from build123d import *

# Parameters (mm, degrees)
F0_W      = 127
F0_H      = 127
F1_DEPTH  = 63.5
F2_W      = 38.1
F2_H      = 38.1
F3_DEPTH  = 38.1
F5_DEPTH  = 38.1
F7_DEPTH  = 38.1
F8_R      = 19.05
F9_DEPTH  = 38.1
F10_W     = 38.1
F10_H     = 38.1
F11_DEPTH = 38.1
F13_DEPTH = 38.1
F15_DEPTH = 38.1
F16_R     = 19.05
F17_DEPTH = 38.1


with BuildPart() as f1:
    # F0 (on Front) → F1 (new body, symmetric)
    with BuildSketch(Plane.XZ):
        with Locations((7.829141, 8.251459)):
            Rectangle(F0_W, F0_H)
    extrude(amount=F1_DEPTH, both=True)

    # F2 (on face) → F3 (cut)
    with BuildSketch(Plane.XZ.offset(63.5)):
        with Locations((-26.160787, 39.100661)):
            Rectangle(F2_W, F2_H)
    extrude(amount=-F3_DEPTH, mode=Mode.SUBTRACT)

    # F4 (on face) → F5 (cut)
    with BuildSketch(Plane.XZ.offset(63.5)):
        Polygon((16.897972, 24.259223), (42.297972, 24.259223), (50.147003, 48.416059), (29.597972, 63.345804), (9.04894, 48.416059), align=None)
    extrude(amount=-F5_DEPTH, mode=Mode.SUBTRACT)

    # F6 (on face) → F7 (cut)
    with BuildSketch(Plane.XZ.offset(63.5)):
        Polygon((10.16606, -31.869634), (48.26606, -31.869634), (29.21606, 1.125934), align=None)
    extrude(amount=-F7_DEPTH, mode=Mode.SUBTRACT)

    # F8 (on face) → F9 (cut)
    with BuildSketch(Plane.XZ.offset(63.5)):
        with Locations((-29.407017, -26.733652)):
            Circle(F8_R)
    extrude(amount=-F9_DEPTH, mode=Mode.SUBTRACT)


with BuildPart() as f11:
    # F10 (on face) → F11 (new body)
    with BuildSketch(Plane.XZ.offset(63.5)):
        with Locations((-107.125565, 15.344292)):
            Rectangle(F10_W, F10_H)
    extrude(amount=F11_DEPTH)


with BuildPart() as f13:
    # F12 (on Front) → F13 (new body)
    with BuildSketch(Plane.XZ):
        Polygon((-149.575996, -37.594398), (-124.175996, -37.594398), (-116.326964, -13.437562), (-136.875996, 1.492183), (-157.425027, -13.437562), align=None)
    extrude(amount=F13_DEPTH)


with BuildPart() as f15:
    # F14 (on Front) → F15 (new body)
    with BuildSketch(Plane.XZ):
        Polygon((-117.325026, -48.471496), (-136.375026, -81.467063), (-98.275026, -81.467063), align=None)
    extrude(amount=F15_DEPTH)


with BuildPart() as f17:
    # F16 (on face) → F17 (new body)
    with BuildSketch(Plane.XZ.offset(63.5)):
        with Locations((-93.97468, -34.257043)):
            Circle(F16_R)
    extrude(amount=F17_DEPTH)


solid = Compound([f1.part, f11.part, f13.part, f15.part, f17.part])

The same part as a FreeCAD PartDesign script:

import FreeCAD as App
import Part
import Sketcher
from FreeCAD import Vector
Q = App.Units.Quantity


def add_polygon(sketch, points):
    """Adds a closed chain of lines whose ends are joined by coincident constraints."""
    first, n = sketch.GeometryCount, len(points)
    for a, b in zip(points, points[1:] + points[:1]):
        sketch.addGeometry(Part.LineSegment(App.Vector(*a, 0), App.Vector(*b, 0)), False)
    for i in range(n):
        sketch.addConstraint(Sketcher.Constraint("Coincident", first + i, 2, first + (i + 1) % n, 1))

doc = App.newDocument("Part")
body = doc.addObject("PartDesign::Body", "Body")

# Sketch on XZ plane
sketch1 = body.newObject("Sketcher::SketchObject", "Sketch")
sketch1.AttachmentSupport = (doc.getObject("XZ_Plane"), [""])
sketch1.MapMode = "FlatFace"
add_polygon(sketch1, [(-56, 72), (-56, -55), (71, -55), (71, 72)])  # lines 0-3
sketch1.addConstraint(Sketcher.Constraint("Vertical", 0))
sketch1.addConstraint(Sketcher.Constraint("Horizontal", 1))
sketch1.addConstraint(Sketcher.Constraint("Vertical", 2))
sketch1.addConstraint(Sketcher.Constraint("Horizontal", 3))
sketch1.addConstraint(Sketcher.Constraint("Equal", 3, 0))
sketch1.addConstraint(Sketcher.Constraint("DistanceX", 1, 1, 1, 2, Q("5 in")))
sketch1.addConstraint(Sketcher.Constraint("DistanceX", 0, 2, -1, 1, Q("55.670859 mm")))
sketch1.addConstraint(Sketcher.Constraint("DistanceY", 0, 2, -1, 1, Q("55.248541 mm")))
pad1 = body.newObject("PartDesign::Pad", "Pad")
pad1.Profile = sketch1
pad1.Length = Q("5 in")
pad1.Midplane = True

# Sketch on XZ plane
sketch2 = body.newObject("Sketcher::SketchObject", "Sketch001")
sketch2.AttachmentSupport = (doc.getObject("XZ_Plane"), [""])
sketch2.MapMode = "FlatFace"
sketch2.AttachmentOffset = App.Placement(Vector(0, 0, 2.5 * 25.4), App.Rotation())
add_polygon(sketch2, [(-45, 58), (-45, 20), (-7, 20), (-7, 58)])  # lines 0-3
sketch2.addConstraint(Sketcher.Constraint("Vertical", 0))
sketch2.addConstraint(Sketcher.Constraint("Horizontal", 1))
sketch2.addConstraint(Sketcher.Constraint("Vertical", 2))
sketch2.addConstraint(Sketcher.Constraint("Horizontal", 3))
sketch2.addConstraint(Sketcher.Constraint("Equal", 3, 0))
sketch2.addConstraint(Sketcher.Constraint("DistanceX", 1, 1, 1, 2, Q("1.5 in")))
sketch2.addConstraint(Sketcher.Constraint("DistanceY", -1, 1, 0, 2, Q("20.050661 mm")))
sketch2.addConstraint(Sketcher.Constraint("DistanceX", 0, 2, -1, 1, Q("45.210787 mm")))
pocket1 = body.newObject("PartDesign::Pocket", "Pocket")
pocket1.Profile = sketch2
pocket1.Length = Q("1.5 in")

# Sketch on XZ plane
sketch3 = body.newObject("Sketcher::SketchObject", "Sketch002")
sketch3.AttachmentSupport = (doc.getObject("XZ_Plane"), [""])
sketch3.MapMode = "FlatFace"
sketch3.AttachmentOffset = App.Placement(Vector(0, 0, 2.5 * 25.4), App.Rotation())
add_polygon(sketch3, [(17, 24), (42, 24), (50, 48), (30, 63), (9, 48)])  # lines 0-4
sketch3.addConstraint(Sketcher.Constraint("Horizontal", 0))
sketch3.addConstraint(Sketcher.Constraint("Horizontal", 1, 2, 3, 2))
sketch3.addConstraint(Sketcher.Constraint("Equal", 1, 2))
sketch3.addConstraint(Sketcher.Constraint("Equal", 2, 3))
sketch3.addConstraint(Sketcher.Constraint("Equal", 3, 4))
sketch3.addConstraint(Sketcher.Constraint("DistanceX", 0, 1, 0, 2, Q("1 in")))
sketch3.addConstraint(Sketcher.Constraint("Distance", 1, Q("1 in")))
sketch3.addConstraint(Sketcher.Constraint("Angle", 1, Q("72.000002 deg")))
sketch3.addConstraint(Sketcher.Constraint("DistanceY", -1, 1, 1, 2, Q("48.416059 mm")))
sketch3.addConstraint(Sketcher.Constraint("DistanceX", -1, 1, 2, 2, Q("29.597972 mm")))
pocket2 = body.newObject("PartDesign::Pocket", "Pocket001")
pocket2.Profile = sketch3
pocket2.Length = Q("1.5 in")

# Sketch on XZ plane
sketch4 = body.newObject("Sketcher::SketchObject", "Sketch003")
sketch4.AttachmentSupport = (doc.getObject("XZ_Plane"), [""])
sketch4.MapMode = "FlatFace"
sketch4.AttachmentOffset = App.Placement(Vector(0, 0, 2.5 * 25.4), App.Rotation())
add_polygon(sketch4, [(10, -32), (48, -32), (29, 1)])  # lines 0-2
sketch4.addConstraint(Sketcher.Constraint("Horizontal", 0))
sketch4.addConstraint(Sketcher.Constraint("Equal", 1, 2))
sketch4.addConstraint(Sketcher.Constraint("DistanceX", 0, 1, 0, 2, Q("1.5 in")))
sketch4.addConstraint(Sketcher.Constraint("Angle", 1, Q("120 deg")))
sketch4.addConstraint(Sketcher.Constraint("DistanceX", -1, 1, 0, 2, Q("48.26606 mm")))
sketch4.addConstraint(Sketcher.Constraint("DistanceY", 0, 2, -1, 1, Q("31.869634 mm")))
pocket3 = body.newObject("PartDesign::Pocket", "Pocket002")
pocket3.Profile = sketch4
pocket3.Length = Q("1.5 in")

# Sketch on XZ plane
sketch5 = body.newObject("Sketcher::SketchObject", "Sketch004")
sketch5.AttachmentSupport = (doc.getObject("XZ_Plane"), [""])
sketch5.MapMode = "FlatFace"
sketch5.AttachmentOffset = App.Placement(Vector(0, 0, 2.5 * 25.4), App.Rotation())
sketch5.addGeometry(Part.Circle(Vector(-29, -27, 0), Vector(0, 0, 1), 19), False)
sketch5.addConstraint(Sketcher.Constraint("Diameter", 0, Q("1.5 in")))
sketch5.addConstraint(Sketcher.Constraint("DistanceY", 0, 3, -1, 1, Q("26.733652 mm")))
sketch5.addConstraint(Sketcher.Constraint("DistanceX", 0, 3, -1, 1, Q("29.407017 mm")))
pocket4 = body.newObject("PartDesign::Pocket", "Pocket003")
pocket4.Profile = sketch5
pocket4.Length = Q("1.5 in")
body2 = doc.addObject("PartDesign::Body", "Body001")

# Sketch on XZ plane
sketch6 = body2.newObject("Sketcher::SketchObject", "Sketch005")
sketch6.AttachmentSupport = (doc.getObject("XZ_Plane001"), [""])
sketch6.MapMode = "FlatFace"
sketch6.AttachmentOffset = App.Placement(Vector(0, 0, 2.5 * 25.4), App.Rotation())
add_polygon(sketch6, [(-126, 34), (-126, -4), (-88, -4), (-88, 34)])  # lines 0-3
sketch6.addConstraint(Sketcher.Constraint("Vertical", 0))
sketch6.addConstraint(Sketcher.Constraint("Horizontal", 1))
sketch6.addConstraint(Sketcher.Constraint("Vertical", 2))
sketch6.addConstraint(Sketcher.Constraint("Horizontal", 3))
sketch6.addConstraint(Sketcher.Constraint("Equal", 3, 0))
sketch6.addConstraint(Sketcher.Constraint("DistanceX", 1, 1, 1, 2, Q("1.5 in")))
sketch6.addConstraint(Sketcher.Constraint("DistanceY", 0, 2, -1, 1, Q("3.705708 mm")))
sketch6.addConstraint(Sketcher.Constraint("DistanceX", 0, 2, -1, 1, Q("126.175565 mm")))
pad2 = body2.newObject("PartDesign::Pad", "Pad001")
pad2.Profile = sketch6
pad2.Length = Q("1.5 in")
body3 = doc.addObject("PartDesign::Body", "Body002")

# Sketch on XZ plane
sketch7 = body3.newObject("Sketcher::SketchObject", "Sketch006")
sketch7.AttachmentSupport = (doc.getObject("XZ_Plane002"), [""])
sketch7.MapMode = "FlatFace"
add_polygon(sketch7, [(-150, -38), (-124, -38), (-116, -13), (-137, 1), (-157, -13)])  # lines 0-4
sketch7.addConstraint(Sketcher.Constraint("Horizontal", 0))
sketch7.addConstraint(Sketcher.Constraint("Horizontal", 1, 2, 3, 2))
sketch7.addConstraint(Sketcher.Constraint("Equal", 1, 2))
sketch7.addConstraint(Sketcher.Constraint("Equal", 2, 3))
sketch7.addConstraint(Sketcher.Constraint("Equal", 3, 4))
sketch7.addConstraint(Sketcher.Constraint("DistanceX", 0, 1, 0, 2, Q("1 in")))
sketch7.addConstraint(Sketcher.Constraint("Distance", 1, Q("1 in")))
sketch7.addConstraint(Sketcher.Constraint("Angle", 1, Q("72 deg")))
sketch7.addConstraint(Sketcher.Constraint("DistanceX", 0, 2, -1, 1, Q("124.175996 mm")))
sketch7.addConstraint(Sketcher.Constraint("DistanceY", 0, 2, -1, 1, Q("37.594398 mm")))
pad3 = body3.newObject("PartDesign::Pad", "Pad002")
pad3.Profile = sketch7
pad3.Length = Q("1.5 in")
body4 = doc.addObject("PartDesign::Body", "Body003")

# Sketch on XZ plane
sketch8 = body4.newObject("Sketcher::SketchObject", "Sketch007")
sketch8.AttachmentSupport = (doc.getObject("XZ_Plane003"), [""])
sketch8.MapMode = "FlatFace"
add_polygon(sketch8, [(-117, -48), (-136, -81), (-98, -81)])  # lines 0-2
sketch8.addConstraint(Sketcher.Constraint("Horizontal", 1))
sketch8.addConstraint(Sketcher.Constraint("Equal", 0, 2))
sketch8.addConstraint(Sketcher.Constraint("DistanceX", 1, 1, 1, 2, Q("1.5 in")))
sketch8.addConstraint(Sketcher.Constraint("Angle", 0, Q("-120.000001 deg")))
sketch8.addConstraint(Sketcher.Constraint("DistanceX", 0, 2, -1, 1, Q("136.375026 mm")))
sketch8.addConstraint(Sketcher.Constraint("DistanceY", 0, 2, -1, 1, Q("81.467063 mm")))
pad4 = body4.newObject("PartDesign::Pad", "Pad003")
pad4.Profile = sketch8
pad4.Length = Q("1.5 in")
body5 = doc.addObject("PartDesign::Body", "Body004")

# Sketch on XZ plane
sketch9 = body5.newObject("Sketcher::SketchObject", "Sketch008")
sketch9.AttachmentSupport = (doc.getObject("XZ_Plane004"), [""])
sketch9.MapMode = "FlatFace"
sketch9.AttachmentOffset = App.Placement(Vector(0, 0, 2.5 * 25.4), App.Rotation())
sketch9.addGeometry(Part.Circle(Vector(-94, -34, 0), Vector(0, 0, 1), 19), False)
sketch9.addConstraint(Sketcher.Constraint("Diameter", 0, Q("1.5 in")))
sketch9.addConstraint(Sketcher.Constraint("DistanceX", 0, 3, -1, 1, Q("93.97468 mm")))
sketch9.addConstraint(Sketcher.Constraint("DistanceY", 0, 3, -1, 1, Q("34.257043 mm")))
pad5 = body5.newObject("PartDesign::Pad", "Pad004")
pad5.Profile = sketch9
pad5.Length = Q("1.5 in")

doc.recompute()
